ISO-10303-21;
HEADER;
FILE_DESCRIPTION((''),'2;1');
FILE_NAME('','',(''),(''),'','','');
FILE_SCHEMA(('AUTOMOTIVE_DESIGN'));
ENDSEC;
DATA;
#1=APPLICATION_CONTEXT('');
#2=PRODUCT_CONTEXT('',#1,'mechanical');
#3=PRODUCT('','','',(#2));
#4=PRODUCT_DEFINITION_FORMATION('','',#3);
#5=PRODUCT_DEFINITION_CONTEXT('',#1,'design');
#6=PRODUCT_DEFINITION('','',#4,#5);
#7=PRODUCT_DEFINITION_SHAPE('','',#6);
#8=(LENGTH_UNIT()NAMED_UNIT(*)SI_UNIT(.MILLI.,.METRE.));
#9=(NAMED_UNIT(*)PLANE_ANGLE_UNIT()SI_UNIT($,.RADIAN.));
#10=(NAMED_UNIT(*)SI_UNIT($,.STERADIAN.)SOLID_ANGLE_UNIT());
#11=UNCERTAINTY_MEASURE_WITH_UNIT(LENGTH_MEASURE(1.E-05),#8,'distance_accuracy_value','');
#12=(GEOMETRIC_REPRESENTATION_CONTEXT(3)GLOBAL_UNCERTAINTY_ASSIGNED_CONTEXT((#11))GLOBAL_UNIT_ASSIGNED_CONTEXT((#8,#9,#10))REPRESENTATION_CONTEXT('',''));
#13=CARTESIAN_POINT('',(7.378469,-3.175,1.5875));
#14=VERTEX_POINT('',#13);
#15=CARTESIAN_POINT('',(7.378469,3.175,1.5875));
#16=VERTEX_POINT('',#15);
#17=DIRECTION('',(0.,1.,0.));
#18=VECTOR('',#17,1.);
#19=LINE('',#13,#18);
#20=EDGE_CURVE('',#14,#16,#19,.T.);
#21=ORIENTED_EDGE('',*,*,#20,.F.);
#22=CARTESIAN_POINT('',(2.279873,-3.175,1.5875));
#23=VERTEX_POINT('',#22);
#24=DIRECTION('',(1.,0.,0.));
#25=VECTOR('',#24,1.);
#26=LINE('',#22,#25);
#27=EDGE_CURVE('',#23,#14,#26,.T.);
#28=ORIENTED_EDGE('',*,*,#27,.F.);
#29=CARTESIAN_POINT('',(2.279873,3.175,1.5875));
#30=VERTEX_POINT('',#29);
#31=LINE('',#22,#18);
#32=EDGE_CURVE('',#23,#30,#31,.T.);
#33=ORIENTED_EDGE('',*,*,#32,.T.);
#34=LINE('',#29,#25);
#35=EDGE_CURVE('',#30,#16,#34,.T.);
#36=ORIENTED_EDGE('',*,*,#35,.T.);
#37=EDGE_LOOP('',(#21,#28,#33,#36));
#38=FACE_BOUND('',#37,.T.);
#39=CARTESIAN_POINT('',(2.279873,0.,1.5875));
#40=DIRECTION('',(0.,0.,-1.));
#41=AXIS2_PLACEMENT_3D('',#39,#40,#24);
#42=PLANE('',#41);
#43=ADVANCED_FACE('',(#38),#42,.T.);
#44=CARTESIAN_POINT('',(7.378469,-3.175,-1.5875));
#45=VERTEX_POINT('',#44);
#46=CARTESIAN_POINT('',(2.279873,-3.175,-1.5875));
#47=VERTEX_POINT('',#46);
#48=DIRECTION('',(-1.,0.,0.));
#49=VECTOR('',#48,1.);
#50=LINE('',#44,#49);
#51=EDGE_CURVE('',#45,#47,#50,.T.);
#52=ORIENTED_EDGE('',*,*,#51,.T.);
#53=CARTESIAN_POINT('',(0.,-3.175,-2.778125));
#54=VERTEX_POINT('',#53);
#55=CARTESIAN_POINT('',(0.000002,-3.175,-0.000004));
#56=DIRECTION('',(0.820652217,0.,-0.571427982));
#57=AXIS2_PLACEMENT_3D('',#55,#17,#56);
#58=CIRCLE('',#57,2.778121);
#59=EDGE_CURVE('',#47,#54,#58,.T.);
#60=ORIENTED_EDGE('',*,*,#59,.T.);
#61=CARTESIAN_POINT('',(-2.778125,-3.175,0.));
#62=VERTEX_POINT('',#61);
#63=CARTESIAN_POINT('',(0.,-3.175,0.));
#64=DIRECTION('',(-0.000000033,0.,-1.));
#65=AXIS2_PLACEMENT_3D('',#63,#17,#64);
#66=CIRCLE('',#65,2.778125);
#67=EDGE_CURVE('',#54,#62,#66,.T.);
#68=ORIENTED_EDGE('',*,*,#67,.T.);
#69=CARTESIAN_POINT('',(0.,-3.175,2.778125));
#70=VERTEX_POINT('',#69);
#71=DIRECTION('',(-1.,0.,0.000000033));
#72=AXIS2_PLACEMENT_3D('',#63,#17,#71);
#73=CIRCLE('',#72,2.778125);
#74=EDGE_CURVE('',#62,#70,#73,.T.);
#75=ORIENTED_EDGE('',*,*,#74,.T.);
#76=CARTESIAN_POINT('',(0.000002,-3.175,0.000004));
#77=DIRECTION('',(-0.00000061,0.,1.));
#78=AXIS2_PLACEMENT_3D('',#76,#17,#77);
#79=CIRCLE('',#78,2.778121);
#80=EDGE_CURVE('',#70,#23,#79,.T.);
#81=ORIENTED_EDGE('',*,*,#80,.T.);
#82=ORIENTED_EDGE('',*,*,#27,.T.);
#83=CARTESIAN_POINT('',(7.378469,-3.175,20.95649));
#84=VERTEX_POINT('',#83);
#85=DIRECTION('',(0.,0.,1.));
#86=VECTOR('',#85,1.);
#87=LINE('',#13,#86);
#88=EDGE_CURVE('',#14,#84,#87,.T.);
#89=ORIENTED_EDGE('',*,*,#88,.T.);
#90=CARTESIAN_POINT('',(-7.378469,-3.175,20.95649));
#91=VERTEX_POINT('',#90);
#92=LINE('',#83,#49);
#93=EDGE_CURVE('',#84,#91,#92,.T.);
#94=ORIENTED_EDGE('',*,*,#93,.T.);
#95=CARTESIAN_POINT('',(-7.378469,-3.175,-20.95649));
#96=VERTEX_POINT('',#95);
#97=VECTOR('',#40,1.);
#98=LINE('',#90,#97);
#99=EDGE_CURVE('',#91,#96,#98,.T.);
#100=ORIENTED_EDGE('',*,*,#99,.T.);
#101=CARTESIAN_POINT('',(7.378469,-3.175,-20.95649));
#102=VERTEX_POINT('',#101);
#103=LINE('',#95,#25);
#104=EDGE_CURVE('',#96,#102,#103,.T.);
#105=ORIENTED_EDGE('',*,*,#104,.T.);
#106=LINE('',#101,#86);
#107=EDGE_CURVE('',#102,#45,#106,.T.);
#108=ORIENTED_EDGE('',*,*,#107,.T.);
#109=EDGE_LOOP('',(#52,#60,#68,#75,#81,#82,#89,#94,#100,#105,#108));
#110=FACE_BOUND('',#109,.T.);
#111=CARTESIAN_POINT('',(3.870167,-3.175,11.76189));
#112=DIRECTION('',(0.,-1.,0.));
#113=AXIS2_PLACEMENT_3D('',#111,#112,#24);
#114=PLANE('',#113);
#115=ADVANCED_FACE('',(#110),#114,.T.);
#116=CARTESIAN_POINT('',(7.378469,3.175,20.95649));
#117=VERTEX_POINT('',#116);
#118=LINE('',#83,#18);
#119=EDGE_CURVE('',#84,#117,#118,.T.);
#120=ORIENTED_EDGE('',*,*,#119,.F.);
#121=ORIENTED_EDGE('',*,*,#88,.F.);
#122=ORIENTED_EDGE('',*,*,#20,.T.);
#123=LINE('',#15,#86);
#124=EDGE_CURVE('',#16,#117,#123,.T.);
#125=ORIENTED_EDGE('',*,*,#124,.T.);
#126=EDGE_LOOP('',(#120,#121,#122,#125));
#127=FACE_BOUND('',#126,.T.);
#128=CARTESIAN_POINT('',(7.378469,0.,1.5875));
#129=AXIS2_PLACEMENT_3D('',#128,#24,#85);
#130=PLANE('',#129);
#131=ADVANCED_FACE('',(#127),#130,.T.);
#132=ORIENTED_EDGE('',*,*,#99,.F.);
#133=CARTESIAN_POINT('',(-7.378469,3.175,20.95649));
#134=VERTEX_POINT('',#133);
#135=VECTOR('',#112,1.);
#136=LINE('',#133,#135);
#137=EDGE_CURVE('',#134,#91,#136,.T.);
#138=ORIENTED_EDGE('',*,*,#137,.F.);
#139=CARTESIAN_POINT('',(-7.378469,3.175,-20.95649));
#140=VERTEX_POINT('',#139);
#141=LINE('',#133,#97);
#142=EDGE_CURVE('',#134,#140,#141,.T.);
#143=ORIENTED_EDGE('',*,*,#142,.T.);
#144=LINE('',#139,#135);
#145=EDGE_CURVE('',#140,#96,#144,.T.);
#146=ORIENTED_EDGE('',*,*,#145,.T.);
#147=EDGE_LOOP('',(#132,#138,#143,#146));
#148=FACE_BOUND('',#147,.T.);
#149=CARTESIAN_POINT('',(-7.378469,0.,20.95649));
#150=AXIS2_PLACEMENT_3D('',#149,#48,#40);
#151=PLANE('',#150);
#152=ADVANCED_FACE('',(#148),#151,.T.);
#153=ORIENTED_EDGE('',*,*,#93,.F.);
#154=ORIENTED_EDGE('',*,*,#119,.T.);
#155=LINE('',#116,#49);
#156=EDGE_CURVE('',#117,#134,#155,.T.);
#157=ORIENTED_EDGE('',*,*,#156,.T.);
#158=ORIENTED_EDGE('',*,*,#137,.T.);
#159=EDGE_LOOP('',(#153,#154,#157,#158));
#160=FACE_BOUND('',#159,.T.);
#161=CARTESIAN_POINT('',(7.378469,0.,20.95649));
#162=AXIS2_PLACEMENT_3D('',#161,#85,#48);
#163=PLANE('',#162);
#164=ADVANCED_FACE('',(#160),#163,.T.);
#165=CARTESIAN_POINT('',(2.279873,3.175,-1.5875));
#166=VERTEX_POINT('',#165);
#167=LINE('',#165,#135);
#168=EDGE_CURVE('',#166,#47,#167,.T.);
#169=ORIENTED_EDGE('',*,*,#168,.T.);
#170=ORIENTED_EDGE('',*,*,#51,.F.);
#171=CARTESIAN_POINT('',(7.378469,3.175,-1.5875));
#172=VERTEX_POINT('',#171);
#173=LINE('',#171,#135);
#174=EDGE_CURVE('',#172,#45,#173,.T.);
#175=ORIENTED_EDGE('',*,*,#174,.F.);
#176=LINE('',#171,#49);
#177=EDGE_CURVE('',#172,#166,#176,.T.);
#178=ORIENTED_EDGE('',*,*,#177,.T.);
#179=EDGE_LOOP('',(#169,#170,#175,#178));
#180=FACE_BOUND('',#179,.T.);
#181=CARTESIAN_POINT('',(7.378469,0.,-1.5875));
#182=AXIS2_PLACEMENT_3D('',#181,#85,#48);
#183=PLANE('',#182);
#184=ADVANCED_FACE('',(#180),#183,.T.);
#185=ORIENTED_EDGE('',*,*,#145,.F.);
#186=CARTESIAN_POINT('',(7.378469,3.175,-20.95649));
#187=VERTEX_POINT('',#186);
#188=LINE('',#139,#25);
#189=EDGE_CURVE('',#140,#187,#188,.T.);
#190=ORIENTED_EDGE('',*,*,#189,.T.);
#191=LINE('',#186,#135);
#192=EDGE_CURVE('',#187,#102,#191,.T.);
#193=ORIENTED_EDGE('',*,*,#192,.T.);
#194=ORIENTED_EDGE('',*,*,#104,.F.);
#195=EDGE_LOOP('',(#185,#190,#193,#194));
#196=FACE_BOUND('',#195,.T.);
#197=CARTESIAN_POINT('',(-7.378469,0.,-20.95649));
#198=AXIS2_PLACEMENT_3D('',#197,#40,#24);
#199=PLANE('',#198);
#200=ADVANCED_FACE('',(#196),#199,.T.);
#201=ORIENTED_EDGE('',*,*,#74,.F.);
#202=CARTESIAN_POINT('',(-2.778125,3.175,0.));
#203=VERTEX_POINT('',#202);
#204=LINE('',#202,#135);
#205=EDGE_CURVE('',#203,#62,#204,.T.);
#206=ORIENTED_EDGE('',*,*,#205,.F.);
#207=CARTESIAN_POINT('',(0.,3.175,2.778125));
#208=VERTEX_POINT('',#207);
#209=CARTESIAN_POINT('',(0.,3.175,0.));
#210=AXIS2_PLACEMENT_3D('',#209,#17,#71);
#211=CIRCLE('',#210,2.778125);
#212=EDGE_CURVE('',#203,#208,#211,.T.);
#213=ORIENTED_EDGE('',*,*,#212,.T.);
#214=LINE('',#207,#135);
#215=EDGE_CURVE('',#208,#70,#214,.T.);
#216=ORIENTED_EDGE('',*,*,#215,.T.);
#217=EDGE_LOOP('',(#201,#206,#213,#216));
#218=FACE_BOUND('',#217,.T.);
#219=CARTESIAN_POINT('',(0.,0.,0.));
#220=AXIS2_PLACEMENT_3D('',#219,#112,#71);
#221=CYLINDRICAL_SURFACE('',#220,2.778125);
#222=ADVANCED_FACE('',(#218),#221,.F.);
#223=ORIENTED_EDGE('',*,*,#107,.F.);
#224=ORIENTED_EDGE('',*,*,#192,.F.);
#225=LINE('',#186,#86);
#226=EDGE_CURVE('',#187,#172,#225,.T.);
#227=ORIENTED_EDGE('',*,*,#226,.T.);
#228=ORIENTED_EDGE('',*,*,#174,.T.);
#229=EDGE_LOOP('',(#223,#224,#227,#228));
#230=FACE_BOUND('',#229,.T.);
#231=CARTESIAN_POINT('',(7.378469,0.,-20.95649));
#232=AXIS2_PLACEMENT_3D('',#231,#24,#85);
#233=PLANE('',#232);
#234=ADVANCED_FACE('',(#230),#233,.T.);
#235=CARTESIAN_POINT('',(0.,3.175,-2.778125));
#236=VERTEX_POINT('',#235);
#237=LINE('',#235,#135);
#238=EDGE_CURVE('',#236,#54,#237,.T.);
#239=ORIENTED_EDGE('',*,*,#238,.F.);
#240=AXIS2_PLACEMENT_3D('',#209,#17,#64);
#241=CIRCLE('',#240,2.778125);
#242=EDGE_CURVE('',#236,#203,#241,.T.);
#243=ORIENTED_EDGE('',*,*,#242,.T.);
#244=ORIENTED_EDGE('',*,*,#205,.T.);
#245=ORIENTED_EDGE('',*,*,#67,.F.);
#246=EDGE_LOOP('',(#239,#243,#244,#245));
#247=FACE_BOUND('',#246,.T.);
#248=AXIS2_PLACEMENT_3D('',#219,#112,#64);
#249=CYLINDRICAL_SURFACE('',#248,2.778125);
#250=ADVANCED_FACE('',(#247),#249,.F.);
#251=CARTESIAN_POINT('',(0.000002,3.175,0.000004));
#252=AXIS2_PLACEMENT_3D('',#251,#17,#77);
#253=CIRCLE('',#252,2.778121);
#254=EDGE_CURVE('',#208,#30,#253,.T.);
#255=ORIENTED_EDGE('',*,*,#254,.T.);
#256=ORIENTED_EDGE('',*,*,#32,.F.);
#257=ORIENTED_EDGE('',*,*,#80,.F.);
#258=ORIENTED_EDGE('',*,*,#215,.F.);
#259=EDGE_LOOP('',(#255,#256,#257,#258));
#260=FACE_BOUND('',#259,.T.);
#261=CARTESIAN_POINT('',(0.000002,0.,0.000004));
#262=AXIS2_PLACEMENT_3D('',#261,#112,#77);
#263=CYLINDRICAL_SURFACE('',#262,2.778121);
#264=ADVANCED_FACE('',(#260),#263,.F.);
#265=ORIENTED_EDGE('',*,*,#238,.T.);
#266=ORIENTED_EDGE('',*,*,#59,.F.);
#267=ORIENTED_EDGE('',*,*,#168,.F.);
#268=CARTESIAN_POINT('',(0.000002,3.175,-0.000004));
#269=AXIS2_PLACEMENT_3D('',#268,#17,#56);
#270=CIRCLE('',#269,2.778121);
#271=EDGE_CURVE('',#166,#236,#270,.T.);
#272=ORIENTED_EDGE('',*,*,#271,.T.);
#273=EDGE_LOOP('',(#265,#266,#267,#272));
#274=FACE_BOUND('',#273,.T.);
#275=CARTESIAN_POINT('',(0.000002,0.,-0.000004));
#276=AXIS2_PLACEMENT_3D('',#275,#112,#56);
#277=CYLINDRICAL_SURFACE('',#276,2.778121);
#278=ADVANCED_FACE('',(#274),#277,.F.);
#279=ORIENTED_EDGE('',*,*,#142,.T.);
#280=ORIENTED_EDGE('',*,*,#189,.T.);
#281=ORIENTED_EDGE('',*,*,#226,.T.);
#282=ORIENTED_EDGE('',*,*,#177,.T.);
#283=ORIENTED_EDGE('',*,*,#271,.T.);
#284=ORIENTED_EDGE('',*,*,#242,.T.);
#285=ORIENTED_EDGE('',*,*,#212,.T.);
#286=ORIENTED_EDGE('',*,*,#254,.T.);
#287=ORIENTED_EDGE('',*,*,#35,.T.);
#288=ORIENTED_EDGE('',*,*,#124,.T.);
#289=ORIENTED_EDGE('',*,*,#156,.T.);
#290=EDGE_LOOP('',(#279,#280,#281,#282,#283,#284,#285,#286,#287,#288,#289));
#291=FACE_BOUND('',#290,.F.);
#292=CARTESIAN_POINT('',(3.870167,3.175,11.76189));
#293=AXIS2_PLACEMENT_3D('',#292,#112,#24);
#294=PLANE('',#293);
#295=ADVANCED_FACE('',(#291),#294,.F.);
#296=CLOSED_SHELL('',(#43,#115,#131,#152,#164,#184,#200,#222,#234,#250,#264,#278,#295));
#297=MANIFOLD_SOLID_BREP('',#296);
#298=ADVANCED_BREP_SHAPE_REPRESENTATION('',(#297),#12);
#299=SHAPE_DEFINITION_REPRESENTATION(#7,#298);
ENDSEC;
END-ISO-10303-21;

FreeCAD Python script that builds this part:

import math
import FreeCAD as App
import Part
import Sketcher
from FreeCAD import Vector
Q = App.Units.Quantity

doc = App.newDocument("Part")
params = doc.addObject("Spreadsheet::Sheet", "Params")
for row, (alias, value) in enumerate([
    ("sketch1_radius", "0.1093748 in"),
    ("pad1_length", "0.25 in"),
], start=1):
    params.set(f"A{row}", alias)
    params.set(f"B{row}", "=" + value)
    params.setAlias(f"B{row}", alias)

body = doc.addObject("PartDesign::Body", "Body")

# Sketch on XZ plane
sketch1 = doc.addObject("Sketcher::SketchObject", "Sketch")
body.addObject(sketch1)
sketch1.AttachmentSupport = (doc.XZ_Plane, [""])
sketch1.MapMode = "FlatFace"
sketch1.addGeometry(Part.LineSegment(Vector(7.378469, 20.95649, 0), Vector(-7.378469, 20.95649, 0)), False)
sketch1.addGeometry(Part.LineSegment(Vector(-7.378469, 20.95649, 0), Vector(-7.378469, -20.95649, 0)), False)
sketch1.addGeometry(Part.LineSegment(Vector(-7.378469, -20.95649, 0), Vector(7.378469, -20.95649, 0)), False)
sketch1.addGeometry(Part.LineSegment(Vector(7.378469, -20.95649, 0), Vector(7.378469, -1.5875, 0)), False)
sketch1.addGeometry(Part.LineSegment(Vector(7.378469, -1.5875, 0), Vector(2.279873, -1.5875, 0)), False)
sketch1.addGeometry(Part.ArcOfCircle(Part.Circle(Vector(0.000002, -0.000004, 0), Vector(0, 0, 1), 2.778121), math.radians(-90.000035), math.radians(-34.849863)), False)
sketch1.addGeometry(Part.ArcOfCircle(Part.Circle(Vector(0, 0, 0), Vector(0, 0, 1), 2.778125), math.radians(-179.999998), math.radians(-90.000002)), False)
sketch1.addGeometry(Part.ArcOfCircle(Part.Circle(Vector(0, 0, 0), Vector(0, 0, 1), 2.778125), math.radians(90.000002), math.radians(179.999998)), False)
sketch1.addGeometry(Part.ArcOfCircle(Part.Circle(Vector(0.000002, 0.000004, 0), Vector(0, 0, 1), 2.778121), math.radians(34.849863), math.radians(90.000035)), False)
sketch1.addGeometry(Part.LineSegment(Vector(2.279873, 1.5875, 0), Vector(7.378469, 1.5875, 0)), False)
sketch1.addGeometry(Part.LineSegment(Vector(7.378469, 1.5875, 0), Vector(7.378469, 20.95649, 0)), False)
sketch1.addConstraint(Sketcher.Constraint("Coincident", 0, 2, 1, 1))
sketch1.addConstraint(Sketcher.Constraint("Coincident", 1, 2, 2, 1))
sketch1.addConstraint(Sketcher.Constraint("Coincident", 2, 2, 3, 1))
sketch1.addConstraint(Sketcher.Constraint("Coincident", 3, 2, 4, 1))
sketch1.addConstraint(Sketcher.Constraint("Coincident", 4, 2, 5, 2))
sketch1.addConstraint(Sketcher.Constraint("Tangent", 5, 1, 6, 2))
sketch1.addConstraint(Sketcher.Constraint("Tangent", 6, 1, 7, 2))
sketch1.addConstraint(Sketcher.Constraint("Tangent", 7, 1, 8, 2))
sketch1.addConstraint(Sketcher.Constraint("Coincident", 8, 1, 9, 1))
sketch1.addConstraint(Sketcher.Constraint("Coincident", 9, 2, 10, 1))
sketch1.addConstraint(Sketcher.Constraint("Coincident", 10, 2, 0, 1))
sketch1.addConstraint(Sketcher.Constraint("Horizontal", 0))
sketch1.addConstraint(Sketcher.Constraint("Vertical", 1))
sketch1.addConstraint(Sketcher.Constraint("Horizontal", 2))
sketch1.addConstraint(Sketcher.Constraint("Vertical", 3))
sketch1.addConstraint(Sketcher.Constraint("Horizontal", 4))
sketch1.addConstraint(Sketcher.Constraint("Horizontal", 9))
sketch1.addConstraint(Sketcher.Constraint("Vertical", 10))
sketch1.addConstraint(Sketcher.Constraint("Coincident", 5, 3, -1, 1))
sketch1.addConstraint(Sketcher.Constraint("Coincident", 7, 3, -1, 1))
sketch1.addConstraint(Sketcher.Constraint("Equal", 5, 8))
sketch1.addConstraint(Sketcher.Constraint("Symmetric", 0, 2, 2, 2, -1, 1))
sketch1.addConstraint(Sketcher.Constraint("Symmetric", 3, 2, 9, 2, -1))
sketch1.addConstraint(Sketcher.Constraint("PointOnObject", 5, 1, -2))
sketch1.addConstraint(Sketcher.Constraint("PointOnObject", 6, 1, -1))
sketch1.addConstraint(Sketcher.Constraint("PointOnObject", 7, 1, -2))
sketch1.addConstraint(Sketcher.Constraint("Radius", 5, Q("0.1093748 in")))
sketch1.addConstraint(Sketcher.Constraint("DistanceY", 3, 2, -1, 1, Q("0.0625 in")))
sketch1.addConstraint(Sketcher.Constraint("DistanceY", 1, 2, 1, 1, 41.91298))
sketch1.addConstraint(Sketcher.Constraint("DistanceX", 0, 2, 0, 1, 14.756938))
sketch1.setExpression("Constraints[26]", "Params.sketch1_radius")
pad1 = doc.addObject("PartDesign::Pad", "Pad")
body.addObject(pad1)
pad1.Profile = sketch1
pad1.setExpression("Length", "Params.pad1_length")
pad1.Midplane = True

doc.recompute()
